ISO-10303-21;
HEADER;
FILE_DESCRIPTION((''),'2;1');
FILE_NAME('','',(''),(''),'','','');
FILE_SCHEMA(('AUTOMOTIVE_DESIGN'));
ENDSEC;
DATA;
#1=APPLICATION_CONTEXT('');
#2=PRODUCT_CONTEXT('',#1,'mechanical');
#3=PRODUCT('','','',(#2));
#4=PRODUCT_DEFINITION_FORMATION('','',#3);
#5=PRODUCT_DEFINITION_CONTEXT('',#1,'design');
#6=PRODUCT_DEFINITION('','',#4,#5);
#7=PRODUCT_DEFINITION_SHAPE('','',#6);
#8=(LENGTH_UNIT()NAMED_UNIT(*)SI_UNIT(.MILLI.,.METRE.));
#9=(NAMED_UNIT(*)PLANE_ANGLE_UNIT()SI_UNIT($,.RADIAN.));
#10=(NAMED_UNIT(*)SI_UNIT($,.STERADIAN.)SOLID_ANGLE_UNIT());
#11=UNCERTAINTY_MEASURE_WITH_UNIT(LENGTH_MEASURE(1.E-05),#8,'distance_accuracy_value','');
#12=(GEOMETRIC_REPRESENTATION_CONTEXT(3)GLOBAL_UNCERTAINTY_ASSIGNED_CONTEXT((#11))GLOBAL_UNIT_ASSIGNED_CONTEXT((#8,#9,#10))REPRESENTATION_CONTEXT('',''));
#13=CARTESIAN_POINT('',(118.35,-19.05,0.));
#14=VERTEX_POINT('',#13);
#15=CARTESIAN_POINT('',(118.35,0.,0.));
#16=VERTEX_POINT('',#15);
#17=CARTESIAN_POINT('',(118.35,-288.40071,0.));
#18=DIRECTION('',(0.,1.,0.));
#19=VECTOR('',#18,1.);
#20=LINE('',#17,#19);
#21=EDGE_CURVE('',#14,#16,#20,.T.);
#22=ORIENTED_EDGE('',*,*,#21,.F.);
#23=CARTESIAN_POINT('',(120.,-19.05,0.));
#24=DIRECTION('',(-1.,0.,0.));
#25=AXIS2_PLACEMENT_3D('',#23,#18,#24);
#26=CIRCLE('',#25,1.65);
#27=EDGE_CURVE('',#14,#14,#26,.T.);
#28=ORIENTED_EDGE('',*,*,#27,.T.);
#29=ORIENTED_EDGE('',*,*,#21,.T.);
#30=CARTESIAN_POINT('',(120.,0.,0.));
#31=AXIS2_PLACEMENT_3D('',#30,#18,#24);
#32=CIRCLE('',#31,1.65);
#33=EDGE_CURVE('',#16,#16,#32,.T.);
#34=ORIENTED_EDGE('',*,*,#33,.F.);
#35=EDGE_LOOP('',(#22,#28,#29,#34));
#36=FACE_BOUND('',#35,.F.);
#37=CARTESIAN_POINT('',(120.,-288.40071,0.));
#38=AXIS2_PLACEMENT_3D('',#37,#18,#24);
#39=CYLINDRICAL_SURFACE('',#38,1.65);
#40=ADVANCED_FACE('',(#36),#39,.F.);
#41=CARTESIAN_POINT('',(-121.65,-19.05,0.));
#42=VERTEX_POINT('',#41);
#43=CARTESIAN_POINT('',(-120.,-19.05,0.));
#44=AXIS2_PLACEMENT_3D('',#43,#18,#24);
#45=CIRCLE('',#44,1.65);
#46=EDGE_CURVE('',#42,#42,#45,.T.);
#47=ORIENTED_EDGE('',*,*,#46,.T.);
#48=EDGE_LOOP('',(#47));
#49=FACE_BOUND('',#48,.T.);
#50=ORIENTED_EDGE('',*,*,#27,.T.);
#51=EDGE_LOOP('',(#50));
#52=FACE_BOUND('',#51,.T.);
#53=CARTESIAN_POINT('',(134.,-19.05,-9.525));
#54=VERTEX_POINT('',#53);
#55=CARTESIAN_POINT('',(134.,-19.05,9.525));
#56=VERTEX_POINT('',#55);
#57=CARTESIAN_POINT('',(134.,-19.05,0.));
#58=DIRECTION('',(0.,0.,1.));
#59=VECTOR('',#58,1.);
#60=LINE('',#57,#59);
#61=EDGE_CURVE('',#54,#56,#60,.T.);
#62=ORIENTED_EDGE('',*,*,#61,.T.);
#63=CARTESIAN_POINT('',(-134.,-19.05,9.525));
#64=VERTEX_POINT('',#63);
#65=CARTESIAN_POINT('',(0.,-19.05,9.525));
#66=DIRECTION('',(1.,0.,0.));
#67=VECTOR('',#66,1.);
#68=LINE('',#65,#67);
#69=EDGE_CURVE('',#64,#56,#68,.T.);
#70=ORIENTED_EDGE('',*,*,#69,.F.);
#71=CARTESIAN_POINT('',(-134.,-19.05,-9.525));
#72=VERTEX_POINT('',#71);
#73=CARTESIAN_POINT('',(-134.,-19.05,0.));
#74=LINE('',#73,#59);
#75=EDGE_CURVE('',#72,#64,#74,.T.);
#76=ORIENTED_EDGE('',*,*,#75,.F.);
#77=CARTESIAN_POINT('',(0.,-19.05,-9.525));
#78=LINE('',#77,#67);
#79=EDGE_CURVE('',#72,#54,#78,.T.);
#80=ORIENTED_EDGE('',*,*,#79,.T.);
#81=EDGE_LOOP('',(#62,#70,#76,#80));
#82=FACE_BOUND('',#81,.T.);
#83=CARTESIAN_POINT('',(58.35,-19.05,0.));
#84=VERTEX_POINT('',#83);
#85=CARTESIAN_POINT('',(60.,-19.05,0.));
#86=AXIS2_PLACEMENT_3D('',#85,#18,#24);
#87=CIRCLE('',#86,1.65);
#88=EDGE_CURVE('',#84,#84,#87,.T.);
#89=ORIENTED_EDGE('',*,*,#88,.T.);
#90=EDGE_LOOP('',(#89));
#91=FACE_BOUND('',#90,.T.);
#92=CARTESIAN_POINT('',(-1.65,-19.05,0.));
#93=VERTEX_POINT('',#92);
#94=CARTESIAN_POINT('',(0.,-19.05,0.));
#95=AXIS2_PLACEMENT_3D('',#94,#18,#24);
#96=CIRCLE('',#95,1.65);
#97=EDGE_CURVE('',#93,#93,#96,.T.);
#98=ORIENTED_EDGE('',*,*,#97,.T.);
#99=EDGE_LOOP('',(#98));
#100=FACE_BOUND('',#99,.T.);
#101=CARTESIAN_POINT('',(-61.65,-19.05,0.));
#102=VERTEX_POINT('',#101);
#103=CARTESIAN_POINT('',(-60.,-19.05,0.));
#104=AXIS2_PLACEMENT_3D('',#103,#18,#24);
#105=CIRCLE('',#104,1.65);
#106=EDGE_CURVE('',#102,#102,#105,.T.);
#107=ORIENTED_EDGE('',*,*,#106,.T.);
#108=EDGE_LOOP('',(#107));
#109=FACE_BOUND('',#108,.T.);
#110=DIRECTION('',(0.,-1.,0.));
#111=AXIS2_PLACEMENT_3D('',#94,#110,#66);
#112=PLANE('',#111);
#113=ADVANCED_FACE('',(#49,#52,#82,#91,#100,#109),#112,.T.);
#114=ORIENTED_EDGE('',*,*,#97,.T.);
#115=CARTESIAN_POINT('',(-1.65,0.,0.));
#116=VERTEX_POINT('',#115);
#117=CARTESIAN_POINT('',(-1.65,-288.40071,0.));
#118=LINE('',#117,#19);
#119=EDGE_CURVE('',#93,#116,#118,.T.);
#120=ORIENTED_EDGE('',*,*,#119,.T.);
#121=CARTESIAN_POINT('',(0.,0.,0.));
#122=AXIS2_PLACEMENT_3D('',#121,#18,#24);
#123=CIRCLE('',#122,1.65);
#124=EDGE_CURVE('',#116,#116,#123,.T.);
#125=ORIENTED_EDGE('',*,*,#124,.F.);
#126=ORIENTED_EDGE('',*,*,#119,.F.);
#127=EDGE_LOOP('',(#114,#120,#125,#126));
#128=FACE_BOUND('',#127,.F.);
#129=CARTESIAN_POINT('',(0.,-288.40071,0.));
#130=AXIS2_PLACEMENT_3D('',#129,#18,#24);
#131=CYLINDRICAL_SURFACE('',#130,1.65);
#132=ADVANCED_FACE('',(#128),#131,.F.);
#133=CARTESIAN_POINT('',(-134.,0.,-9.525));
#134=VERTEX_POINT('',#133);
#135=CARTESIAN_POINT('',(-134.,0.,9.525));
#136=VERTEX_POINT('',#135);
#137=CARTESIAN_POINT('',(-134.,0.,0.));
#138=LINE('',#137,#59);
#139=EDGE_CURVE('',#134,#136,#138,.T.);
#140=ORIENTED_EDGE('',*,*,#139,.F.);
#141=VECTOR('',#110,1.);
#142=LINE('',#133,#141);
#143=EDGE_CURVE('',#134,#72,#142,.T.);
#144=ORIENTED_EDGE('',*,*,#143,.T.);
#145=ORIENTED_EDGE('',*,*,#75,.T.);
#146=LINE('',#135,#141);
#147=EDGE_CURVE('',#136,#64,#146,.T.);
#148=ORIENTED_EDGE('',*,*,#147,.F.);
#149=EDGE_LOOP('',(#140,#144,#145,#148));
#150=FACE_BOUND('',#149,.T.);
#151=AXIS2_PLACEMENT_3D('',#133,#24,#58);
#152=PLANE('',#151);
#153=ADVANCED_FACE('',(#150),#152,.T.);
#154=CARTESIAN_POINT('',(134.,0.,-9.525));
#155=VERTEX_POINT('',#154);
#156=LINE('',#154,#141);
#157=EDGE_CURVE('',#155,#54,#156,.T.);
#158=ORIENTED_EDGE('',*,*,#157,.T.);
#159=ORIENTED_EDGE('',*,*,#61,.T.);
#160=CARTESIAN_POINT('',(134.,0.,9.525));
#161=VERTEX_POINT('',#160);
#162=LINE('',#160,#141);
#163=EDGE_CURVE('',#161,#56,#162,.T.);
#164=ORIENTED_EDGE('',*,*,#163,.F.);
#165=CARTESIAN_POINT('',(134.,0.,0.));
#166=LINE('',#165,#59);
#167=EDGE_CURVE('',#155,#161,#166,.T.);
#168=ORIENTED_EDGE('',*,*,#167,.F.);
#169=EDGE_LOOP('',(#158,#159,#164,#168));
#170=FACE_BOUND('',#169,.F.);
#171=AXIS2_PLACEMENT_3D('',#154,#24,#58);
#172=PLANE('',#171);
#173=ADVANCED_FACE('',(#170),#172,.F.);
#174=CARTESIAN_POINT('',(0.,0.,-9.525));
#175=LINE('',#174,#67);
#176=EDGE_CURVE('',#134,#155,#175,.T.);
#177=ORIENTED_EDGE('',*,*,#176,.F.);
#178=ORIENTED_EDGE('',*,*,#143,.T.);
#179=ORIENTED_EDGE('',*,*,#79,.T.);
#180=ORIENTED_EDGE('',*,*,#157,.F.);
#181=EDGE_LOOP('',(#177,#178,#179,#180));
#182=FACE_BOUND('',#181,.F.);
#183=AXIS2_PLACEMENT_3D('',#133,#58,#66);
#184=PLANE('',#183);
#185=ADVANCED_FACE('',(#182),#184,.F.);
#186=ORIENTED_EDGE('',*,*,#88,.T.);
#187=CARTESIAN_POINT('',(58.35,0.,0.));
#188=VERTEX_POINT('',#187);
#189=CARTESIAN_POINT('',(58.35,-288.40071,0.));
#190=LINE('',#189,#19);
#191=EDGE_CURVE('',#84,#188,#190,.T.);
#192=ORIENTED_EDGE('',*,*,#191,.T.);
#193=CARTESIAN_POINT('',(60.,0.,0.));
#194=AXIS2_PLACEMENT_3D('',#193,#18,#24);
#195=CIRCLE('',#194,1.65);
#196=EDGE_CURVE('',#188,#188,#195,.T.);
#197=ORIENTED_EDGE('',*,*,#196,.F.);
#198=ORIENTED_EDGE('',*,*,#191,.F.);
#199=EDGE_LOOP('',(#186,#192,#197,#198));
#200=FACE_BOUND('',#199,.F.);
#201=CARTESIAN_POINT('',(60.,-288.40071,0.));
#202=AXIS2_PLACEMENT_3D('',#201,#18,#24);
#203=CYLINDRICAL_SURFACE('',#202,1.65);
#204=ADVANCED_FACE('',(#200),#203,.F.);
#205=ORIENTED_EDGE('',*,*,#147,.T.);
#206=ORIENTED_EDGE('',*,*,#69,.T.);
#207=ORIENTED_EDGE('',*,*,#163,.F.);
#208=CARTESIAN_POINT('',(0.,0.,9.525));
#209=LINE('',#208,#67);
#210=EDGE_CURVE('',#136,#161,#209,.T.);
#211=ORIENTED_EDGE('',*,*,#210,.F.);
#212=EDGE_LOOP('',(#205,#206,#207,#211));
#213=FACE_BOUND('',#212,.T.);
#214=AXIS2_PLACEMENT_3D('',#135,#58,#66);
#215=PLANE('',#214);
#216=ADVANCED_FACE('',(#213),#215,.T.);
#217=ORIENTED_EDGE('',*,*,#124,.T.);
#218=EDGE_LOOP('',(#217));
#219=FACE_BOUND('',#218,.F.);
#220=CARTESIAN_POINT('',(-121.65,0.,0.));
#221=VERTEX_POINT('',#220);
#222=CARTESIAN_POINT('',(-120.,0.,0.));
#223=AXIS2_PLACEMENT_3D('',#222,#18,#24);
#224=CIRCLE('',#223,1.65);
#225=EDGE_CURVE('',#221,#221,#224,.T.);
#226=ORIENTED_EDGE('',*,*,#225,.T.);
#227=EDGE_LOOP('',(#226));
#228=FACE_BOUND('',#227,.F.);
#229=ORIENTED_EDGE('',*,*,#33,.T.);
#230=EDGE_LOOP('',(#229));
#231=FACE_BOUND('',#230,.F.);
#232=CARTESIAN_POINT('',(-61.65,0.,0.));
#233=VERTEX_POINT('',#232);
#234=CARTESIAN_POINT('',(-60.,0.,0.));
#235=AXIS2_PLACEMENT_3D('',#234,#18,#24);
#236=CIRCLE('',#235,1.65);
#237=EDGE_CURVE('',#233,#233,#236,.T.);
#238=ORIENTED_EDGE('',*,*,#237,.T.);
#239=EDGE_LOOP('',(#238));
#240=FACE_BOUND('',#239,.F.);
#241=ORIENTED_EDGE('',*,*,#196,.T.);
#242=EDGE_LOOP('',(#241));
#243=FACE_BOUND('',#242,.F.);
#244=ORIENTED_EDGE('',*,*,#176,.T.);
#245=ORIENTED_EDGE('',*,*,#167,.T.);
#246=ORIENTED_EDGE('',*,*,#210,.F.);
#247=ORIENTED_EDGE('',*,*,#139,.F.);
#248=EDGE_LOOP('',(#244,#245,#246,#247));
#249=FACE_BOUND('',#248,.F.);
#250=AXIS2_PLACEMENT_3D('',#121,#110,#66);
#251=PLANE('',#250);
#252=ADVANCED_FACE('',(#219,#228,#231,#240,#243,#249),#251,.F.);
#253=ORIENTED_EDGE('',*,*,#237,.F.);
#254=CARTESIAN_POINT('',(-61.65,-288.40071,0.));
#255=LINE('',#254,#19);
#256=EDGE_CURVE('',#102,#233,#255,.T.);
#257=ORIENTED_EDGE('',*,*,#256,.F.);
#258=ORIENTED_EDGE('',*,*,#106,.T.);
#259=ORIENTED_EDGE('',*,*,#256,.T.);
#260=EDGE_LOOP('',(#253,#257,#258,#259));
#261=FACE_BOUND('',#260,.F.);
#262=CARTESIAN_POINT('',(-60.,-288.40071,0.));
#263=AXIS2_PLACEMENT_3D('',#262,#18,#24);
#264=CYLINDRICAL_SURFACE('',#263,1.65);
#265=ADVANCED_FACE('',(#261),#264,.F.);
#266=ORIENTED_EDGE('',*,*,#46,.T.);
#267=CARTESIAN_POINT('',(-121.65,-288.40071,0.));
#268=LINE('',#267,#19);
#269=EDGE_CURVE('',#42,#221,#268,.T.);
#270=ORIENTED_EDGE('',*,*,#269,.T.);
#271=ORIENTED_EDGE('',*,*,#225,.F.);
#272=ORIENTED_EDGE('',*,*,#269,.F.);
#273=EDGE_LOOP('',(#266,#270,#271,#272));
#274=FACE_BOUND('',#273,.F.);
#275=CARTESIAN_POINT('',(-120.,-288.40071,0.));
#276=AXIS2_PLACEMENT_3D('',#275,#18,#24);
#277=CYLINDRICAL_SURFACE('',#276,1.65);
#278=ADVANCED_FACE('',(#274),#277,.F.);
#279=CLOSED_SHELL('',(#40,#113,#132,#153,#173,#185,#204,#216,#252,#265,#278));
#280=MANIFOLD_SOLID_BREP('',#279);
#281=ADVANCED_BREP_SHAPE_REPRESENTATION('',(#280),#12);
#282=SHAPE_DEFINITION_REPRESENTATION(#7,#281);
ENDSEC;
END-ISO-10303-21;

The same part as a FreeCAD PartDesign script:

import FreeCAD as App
import Part
import Sketcher

V = App.Vector


def add_polygon(sketch, points):
    """Adds a closed chain of lines whose ends are joined by coincident constraints."""
    first, n = sketch.GeometryCount, len(points)
    for a, b in zip(points, points[1:] + points[:1]):
        sketch.addGeometry(Part.LineSegment(App.Vector(*a, 0), App.Vector(*b, 0)), False)
    for i in range(n):
        sketch.addConstraint(Sketcher.Constraint("Coincident", first + i, 2, first + (i + 1) % n, 1))

doc = App.newDocument("Part")
params = doc.addObject("Spreadsheet::Sheet", "Params")
for row, (alias, value) in enumerate([
    ("sketch1_width", "268 mm"),
    ("sketch1_height", "19.05 mm"),
    ("pad1_length", "19.05 mm"),
    ("sketch2_diameter", "3.3 mm"),
    ("hole_diameter", "3.3 mm"),
], start=1):
    params.set(f"A{row}", alias)
    params.set(f"B{row}", "=" + value)
    params.setAlias(f"B{row}", alias)

body = doc.addObject("PartDesign::Body", "Body")

# Sketch on XZ plane
sketch1 = body.newObject("Sketcher::SketchObject", "Sketch")
sketch1.AttachmentSupport = (doc.getObject("XZ_Plane"), [""])
sketch1.MapMode = "FlatFace"
add_polygon(sketch1, [(-134, 10), (-134, -10), (134, -10), (134, 10)])  # lines 0-3
sketch1.addConstraint(Sketcher.Constraint("Vertical", 0))
sketch1.addConstraint(Sketcher.Constraint("Horizontal", 1))
sketch1.addConstraint(Sketcher.Constraint("Vertical", 2))
sketch1.addConstraint(Sketcher.Constraint("Horizontal", 3))
sketch1.addConstraint(Sketcher.Constraint("Symmetric", 0, 2, 2, 2, -1, 1))
sketch1.addConstraint(Sketcher.Constraint("DistanceX", 1, 1, 1, 2, 268.0))
sketch1.addConstraint(Sketcher.Constraint("DistanceY", 0, 2, 0, 1, 19.05))
sketch1.setExpression("Constraints[9]", "Params.sketch1_width")
sketch1.setExpression("Constraints[10]", "Params.sketch1_height")
pad1 = body.newObject("PartDesign::Pad", "Pad")
pad1.Profile = sketch1
pad1.setExpression("Length", "Params.pad1_length")

# Sketch on XZ plane
sketch2 = body.newObject("Sketcher::SketchObject", "Sketch001")
sketch2.AttachmentSupport = (doc.getObject("XZ_Plane"), [""])
sketch2.MapMode = "FlatFace"
sketch2.AttachmentOffset = App.Placement(V(0, 0, 19.05), App.Rotation())
sketch2.addGeometry(Part.Circle(V(-120, 0, 0), V(0, 0, 1), 1.6), False)
sketch2.addGeometry(Part.Circle(V(-60, 0, 0), V(0, 0, 1), 1.6), False)
sketch2.addGeometry(Part.Circle(V(0, 0, 0), V(0, 0, 1), 1.6), False)
sketch2.addGeometry(Part.Circle(V(60, 0, 0), V(0, 0, 1), 1.6), False)
sketch2.addGeometry(Part.Circle(V(120, 0, 0), V(0, 0, 1), 1.6), False)
sketch2.addConstraint(Sketcher.Constraint("Coincident", 2, 3, -1, 1))
sketch2.addConstraint(Sketcher.Constraint("Equal", 0, 1))
sketch2.addConstraint(Sketcher.Constraint("Equal", 1, 2))
sketch2.addConstraint(Sketcher.Constraint("Equal", 2, 3))
sketch2.addConstraint(Sketcher.Constraint("Equal", 3, 4))
sketch2.addConstraint(Sketcher.Constraint("Symmetric", 1, 3, 3, 3, -1, 1))
sketch2.addConstraint(Sketcher.Constraint("Symmetric", 0, 3, 4, 3, -1, 1))
sketch2.addConstraint(Sketcher.Constraint("PointOnObject", 0, 3, -1))
sketch2.addConstraint(Sketcher.Constraint("PointOnObject", 1, 3, -1))
sketch2.addConstraint(Sketcher.Constraint("Diameter", 0, 3.3))
sketch2.addConstraint(Sketcher.Constraint("DistanceX", 0, 3, -1, 1, 120.0))
sketch2.addConstraint(Sketcher.Constraint("DistanceX", 1, 3, -1, 1, 60.0))
sketch2.setExpression("Constraints[9]", "Params.sketch2_diameter")
doc.recompute()
hole = body.newObject("PartDesign::Hole", "Hole")
hole.Profile = sketch2
hole.ThreadType = "None"
hole.setExpression("Diameter", "Params.hole_diameter")
hole.DepthType = "ThroughAll"

doc.recompute()
